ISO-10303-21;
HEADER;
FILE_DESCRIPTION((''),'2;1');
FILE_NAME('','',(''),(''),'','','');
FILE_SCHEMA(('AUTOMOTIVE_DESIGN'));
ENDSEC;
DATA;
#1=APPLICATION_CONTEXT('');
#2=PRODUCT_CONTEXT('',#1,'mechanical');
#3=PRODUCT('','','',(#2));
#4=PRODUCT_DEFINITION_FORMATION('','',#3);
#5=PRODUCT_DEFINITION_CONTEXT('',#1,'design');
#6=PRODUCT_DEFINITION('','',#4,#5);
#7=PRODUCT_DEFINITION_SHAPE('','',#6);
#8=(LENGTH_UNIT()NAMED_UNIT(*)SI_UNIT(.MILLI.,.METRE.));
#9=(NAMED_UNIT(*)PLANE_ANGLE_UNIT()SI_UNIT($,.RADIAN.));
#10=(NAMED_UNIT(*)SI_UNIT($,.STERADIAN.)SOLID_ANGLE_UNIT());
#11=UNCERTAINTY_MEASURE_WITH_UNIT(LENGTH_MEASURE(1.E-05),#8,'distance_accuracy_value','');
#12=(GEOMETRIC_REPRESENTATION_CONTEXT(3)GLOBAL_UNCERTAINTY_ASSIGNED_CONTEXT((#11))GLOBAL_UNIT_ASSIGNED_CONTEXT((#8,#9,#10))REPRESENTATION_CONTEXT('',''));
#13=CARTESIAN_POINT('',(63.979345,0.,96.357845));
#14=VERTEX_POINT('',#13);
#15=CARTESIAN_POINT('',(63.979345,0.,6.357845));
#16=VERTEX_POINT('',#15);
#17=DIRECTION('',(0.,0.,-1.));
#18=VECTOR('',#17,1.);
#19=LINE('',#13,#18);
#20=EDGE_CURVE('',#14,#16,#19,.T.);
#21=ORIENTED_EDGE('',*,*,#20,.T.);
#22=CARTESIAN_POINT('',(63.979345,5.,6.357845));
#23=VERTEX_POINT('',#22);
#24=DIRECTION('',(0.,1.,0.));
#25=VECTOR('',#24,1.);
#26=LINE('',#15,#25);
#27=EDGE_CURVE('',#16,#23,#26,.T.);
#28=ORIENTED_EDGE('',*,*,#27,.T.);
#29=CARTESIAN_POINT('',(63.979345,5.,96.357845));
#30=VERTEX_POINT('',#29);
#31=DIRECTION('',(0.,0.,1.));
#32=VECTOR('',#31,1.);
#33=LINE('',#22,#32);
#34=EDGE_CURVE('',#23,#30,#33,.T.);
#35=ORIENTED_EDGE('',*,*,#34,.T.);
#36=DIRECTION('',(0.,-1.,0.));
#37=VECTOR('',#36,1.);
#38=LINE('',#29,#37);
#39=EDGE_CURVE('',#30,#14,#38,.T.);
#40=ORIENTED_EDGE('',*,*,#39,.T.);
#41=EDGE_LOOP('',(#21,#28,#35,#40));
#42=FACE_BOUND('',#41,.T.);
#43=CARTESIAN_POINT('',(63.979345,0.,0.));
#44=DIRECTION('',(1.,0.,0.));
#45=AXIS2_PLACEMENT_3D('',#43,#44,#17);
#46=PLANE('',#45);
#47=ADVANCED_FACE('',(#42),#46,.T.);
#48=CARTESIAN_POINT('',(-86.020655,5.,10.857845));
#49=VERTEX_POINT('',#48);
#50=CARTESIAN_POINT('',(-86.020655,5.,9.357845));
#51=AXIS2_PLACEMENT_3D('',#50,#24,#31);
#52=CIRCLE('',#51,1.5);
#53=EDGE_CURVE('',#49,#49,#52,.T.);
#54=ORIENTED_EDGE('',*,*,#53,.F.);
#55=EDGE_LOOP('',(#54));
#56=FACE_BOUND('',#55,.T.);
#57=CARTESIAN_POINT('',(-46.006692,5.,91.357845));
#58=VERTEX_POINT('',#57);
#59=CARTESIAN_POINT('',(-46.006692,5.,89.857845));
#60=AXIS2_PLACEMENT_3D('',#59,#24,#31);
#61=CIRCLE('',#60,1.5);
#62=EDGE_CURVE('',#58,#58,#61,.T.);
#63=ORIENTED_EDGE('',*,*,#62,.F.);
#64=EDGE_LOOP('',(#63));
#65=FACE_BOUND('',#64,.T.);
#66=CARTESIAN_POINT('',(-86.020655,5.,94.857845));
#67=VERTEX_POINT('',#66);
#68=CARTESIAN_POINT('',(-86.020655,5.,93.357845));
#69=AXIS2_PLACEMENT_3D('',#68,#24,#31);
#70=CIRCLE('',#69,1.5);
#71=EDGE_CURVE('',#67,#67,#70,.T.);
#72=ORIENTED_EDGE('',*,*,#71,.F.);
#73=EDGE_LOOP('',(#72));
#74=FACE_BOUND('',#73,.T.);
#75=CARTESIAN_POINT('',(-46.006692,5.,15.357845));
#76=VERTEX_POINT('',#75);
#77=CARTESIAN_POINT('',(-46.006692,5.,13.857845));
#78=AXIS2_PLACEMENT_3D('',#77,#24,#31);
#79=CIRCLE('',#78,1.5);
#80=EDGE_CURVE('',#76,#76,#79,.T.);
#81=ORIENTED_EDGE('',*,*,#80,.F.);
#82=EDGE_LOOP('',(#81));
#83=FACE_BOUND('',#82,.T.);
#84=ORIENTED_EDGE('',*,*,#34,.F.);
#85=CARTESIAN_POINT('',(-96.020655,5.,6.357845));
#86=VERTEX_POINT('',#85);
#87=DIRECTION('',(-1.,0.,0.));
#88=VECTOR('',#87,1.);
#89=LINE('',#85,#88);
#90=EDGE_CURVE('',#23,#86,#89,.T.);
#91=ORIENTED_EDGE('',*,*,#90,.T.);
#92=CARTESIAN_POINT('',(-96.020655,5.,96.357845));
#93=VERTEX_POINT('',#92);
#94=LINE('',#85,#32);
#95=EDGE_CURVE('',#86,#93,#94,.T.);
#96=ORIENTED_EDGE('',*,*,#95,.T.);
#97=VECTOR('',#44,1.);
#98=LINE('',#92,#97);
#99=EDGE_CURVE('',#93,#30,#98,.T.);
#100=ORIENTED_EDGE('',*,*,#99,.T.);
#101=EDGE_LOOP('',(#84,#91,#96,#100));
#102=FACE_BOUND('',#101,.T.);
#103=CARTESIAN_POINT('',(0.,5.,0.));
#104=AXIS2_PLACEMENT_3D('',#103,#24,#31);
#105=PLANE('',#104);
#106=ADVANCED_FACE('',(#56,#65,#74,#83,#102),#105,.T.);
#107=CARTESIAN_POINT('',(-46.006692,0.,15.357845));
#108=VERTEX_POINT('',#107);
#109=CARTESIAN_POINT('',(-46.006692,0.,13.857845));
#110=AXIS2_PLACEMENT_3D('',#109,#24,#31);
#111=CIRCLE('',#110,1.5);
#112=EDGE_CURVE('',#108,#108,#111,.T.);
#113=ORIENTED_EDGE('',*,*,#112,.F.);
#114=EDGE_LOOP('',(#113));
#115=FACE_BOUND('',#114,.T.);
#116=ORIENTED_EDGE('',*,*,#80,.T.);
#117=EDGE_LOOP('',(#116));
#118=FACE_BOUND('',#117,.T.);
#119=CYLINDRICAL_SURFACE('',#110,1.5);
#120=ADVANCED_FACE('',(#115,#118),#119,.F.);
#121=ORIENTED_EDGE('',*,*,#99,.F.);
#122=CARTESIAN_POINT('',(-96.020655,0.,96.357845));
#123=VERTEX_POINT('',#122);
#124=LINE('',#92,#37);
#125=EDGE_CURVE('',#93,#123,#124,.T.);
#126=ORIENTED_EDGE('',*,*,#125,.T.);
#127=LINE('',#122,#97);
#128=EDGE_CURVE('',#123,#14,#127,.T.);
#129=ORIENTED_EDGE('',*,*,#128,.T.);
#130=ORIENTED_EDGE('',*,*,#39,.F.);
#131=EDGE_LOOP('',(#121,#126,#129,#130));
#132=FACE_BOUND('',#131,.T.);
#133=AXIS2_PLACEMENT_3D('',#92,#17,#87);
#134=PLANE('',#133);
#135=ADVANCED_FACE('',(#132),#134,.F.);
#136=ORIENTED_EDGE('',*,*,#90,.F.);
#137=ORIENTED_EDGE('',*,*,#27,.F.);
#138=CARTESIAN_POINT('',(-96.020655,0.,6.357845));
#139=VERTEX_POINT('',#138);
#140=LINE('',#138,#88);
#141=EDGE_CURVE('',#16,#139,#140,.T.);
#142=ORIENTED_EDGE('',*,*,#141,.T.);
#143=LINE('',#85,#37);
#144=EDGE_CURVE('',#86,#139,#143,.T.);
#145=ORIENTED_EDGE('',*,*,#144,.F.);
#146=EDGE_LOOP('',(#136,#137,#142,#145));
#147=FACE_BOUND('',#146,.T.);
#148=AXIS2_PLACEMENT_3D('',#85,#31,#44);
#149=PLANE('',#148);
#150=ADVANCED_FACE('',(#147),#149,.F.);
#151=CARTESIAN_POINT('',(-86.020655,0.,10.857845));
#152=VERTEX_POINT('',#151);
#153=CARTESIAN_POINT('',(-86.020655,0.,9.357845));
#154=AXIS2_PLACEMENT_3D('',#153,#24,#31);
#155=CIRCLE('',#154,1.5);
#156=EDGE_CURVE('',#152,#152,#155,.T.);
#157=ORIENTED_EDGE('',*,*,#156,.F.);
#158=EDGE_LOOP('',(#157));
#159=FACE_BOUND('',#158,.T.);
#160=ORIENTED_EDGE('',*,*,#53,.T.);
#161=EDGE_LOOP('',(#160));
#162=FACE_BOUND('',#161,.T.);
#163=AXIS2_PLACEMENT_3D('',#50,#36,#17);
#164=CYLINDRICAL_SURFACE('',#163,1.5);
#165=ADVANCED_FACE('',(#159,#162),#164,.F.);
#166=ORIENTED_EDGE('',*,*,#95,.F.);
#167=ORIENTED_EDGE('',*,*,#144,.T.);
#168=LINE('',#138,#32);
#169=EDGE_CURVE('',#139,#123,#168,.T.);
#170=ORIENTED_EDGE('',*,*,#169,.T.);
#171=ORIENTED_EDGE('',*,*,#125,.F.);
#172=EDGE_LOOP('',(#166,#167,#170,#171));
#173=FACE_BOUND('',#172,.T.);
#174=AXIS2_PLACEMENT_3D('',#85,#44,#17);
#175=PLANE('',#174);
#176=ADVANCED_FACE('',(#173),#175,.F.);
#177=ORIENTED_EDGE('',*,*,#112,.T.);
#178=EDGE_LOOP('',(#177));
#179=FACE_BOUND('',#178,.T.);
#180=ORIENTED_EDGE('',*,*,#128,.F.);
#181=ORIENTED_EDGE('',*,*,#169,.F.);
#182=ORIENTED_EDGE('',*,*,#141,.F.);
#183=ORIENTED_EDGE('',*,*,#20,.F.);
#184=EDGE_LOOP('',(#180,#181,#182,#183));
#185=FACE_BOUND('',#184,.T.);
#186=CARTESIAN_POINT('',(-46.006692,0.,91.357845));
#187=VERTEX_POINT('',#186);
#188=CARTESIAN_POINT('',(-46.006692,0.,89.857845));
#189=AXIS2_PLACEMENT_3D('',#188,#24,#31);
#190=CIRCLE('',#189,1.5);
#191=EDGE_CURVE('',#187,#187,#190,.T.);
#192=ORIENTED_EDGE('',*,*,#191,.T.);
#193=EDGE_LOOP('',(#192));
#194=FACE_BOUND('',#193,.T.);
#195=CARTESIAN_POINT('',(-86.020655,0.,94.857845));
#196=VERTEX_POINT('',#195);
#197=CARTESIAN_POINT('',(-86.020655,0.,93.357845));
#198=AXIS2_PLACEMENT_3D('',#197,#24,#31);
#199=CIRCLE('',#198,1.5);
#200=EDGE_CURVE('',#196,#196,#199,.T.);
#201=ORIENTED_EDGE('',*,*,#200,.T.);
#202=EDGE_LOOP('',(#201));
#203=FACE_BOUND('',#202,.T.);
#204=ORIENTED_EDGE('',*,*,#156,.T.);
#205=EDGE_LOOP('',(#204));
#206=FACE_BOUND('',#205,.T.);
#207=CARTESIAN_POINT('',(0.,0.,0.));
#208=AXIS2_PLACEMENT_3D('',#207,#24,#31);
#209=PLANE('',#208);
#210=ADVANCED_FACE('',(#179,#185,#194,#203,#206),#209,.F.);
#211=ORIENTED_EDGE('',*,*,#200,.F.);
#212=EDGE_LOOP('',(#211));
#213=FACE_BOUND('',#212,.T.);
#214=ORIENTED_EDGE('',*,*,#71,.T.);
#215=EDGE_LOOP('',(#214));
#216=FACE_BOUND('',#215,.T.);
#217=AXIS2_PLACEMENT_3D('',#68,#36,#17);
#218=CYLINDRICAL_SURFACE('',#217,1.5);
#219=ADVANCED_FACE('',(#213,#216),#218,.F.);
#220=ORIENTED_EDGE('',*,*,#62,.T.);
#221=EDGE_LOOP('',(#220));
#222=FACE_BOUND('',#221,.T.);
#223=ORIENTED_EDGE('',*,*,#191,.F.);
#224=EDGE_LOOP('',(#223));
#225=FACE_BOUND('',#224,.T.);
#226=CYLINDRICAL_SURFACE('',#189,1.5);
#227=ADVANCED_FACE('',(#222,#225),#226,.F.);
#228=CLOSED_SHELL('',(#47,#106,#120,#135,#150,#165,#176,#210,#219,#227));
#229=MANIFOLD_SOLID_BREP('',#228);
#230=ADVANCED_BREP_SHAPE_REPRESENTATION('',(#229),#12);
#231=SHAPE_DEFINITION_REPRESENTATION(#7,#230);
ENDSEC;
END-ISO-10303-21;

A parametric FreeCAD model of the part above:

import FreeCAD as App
import Part
import Sketcher
from FreeCAD import Vector


def add_polygon(sketch, points):
    """Adds a closed chain of lines whose ends are joined by coincident constraints."""
    first, n = sketch.GeometryCount, len(points)
    for a, b in zip(points, points[1:] + points[:1]):
        sketch.addGeometry(Part.LineSegment(App.Vector(*a, 0), App.Vector(*b, 0)), False)
    for i in range(n):
        sketch.addConstraint(Sketcher.Constraint("Coincident", first + i, 2, first + (i + 1) % n, 1))

doc = App.newDocument("Part")
params = doc.addObject("Spreadsheet::Sheet", "Params")
for row, (alias, value) in enumerate([
    ("sketch1_diameter", "3 mm"),
    ("sketch1_width", "200 mm"),
    ("sketch1_height", "90 mm"),
    ("pad1_length", "5 mm"),
    ("sketch2_width", "140 mm"),
    ("sketch2_height", "90 mm"),
    ("sketch3_diameter", "3 mm"),
    ("sketch4_width", "5 mm"),
    ("sketch4_height", "90 mm"),
    ("pad2_length", "100 mm"),
], start=1):
    params.set(f"A{row}", alias)
    params.set(f"B{row}", "=" + value)
    params.setAlias(f"B{row}", alias)

body = doc.addObject("PartDesign::Body", "Body")

# Sketch on XZ plane
sketch1 = body.newObject("Sketcher::SketchObject", "Sketch")
sketch1.AttachmentSupport = (doc.getObject("XZ_Plane"), [""])
sketch1.MapMode = "FlatFace"
add_polygon(sketch1, [(-96, 6.4), (-96, 96.4), (104, 96.4), (104, 6.4)])  # lines 0-3
sketch1.addGeometry(Part.Circle(Vector(-86, 93.4, 0), Vector(0, 0, 1), 1.5), False)  # 4
sketch1.addGeometry(Part.Circle(Vector(94, 93.4, 0), Vector(0, 0, 1), 1.5), False)  # 5
sketch1.addGeometry(Part.Circle(Vector(-86, 9.4, 0), Vector(0, 0, 1), 1.5), False)  # 6
sketch1.addGeometry(Part.Circle(Vector(94, 9.4, 0), Vector(0, 0, 1), 1.5), False)  # 7
sketch1.addConstraint([
    Sketcher.Constraint("Vertical", 0),
    Sketcher.Constraint("Horizontal", 1),
    Sketcher.Constraint("Vertical", 2),
    Sketcher.Constraint("Horizontal", 3),
    Sketcher.Constraint("Equal", 4, 5),
    Sketcher.Constraint("Equal", 5, 6),
    Sketcher.Constraint("Equal", 6, 7),
    Sketcher.Constraint("Horizontal", 4, 3, 5, 3),
    Sketcher.Constraint("Horizontal", 6, 3, 7, 3),
    Sketcher.Constraint("Vertical", 4, 3, 6, 3),
    Sketcher.Constraint("Vertical", 5, 3, 7, 3),
    Sketcher.Constraint("Diameter", 4, 3.0),
    Sketcher.Constraint("DistanceX", 1, 1, 1, 2, 200.0),
    Sketcher.Constraint("DistanceY", 0, 1, 0, 2, 90.0),
    Sketcher.Constraint("DistanceX", 4, 3, 5, 3, 180.0),
    Sketcher.Constraint("DistanceY", 6, 3, 4, 3, 84.0),
    Sketcher.Constraint("DistanceX", 0, 2, 4, 3, 10.0),
    Sketcher.Constraint("DistanceY", 4, 3, 0, 2, 3.0),
    Sketcher.Constraint("DistanceX", 4, 3, -1, 1, 86.020655),
    Sketcher.Constraint("DistanceY", -1, 1, 4, 3, 93.357845),
])
sketch1.setExpression("Constraints[15]", "Params.sketch1_diameter")
sketch1.setExpression("Constraints[16]", "Params.sketch1_width")
sketch1.setExpression("Constraints[17]", "Params.sketch1_height")
pad1 = body.newObject("PartDesign::Pad", "Pad")
pad1.Profile = sketch1
pad1.setExpression("Length", "Params.pad1_length")
pad1.Reversed = True

# Sketch on XZ plane
sketch2 = body.newObject("Sketcher::SketchObject", "Sketch001")
sketch2.AttachmentSupport = (doc.getObject("XZ_Plane"), [""])
sketch2.MapMode = "FlatFace"
sketch2.AttachmentOffset = App.Placement(Vector(0, 0, -5), App.Rotation())
add_polygon(sketch2, [(-36, 6), (-36, 96), (104, 96), (104, 6)])  # lines 0-3
sketch2.addConstraint([
    Sketcher.Constraint("Vertical", 0),
    Sketcher.Constraint("Horizontal", 1),
    Sketcher.Constraint("Vertical", 2),
    Sketcher.Constraint("Horizontal", 3),
    Sketcher.Constraint("DistanceX", 1, 1, 1, 2, 140.0),
    Sketcher.Constraint("DistanceY", 0, 1, 0, 2, 90.0),
    Sketcher.Constraint("DistanceX", 0, 2, -1, 1, 36.020655),
    Sketcher.Constraint("DistanceY", -1, 1, 0, 2, 96.357845),
])
sketch2.setExpression("Constraints[8]", "Params.sketch2_width")
sketch2.setExpression("Constraints[9]", "Params.sketch2_height")
pocket1 = body.newObject("PartDesign::Pocket", "Pocket")
pocket1.Profile = sketch2
pocket1.Type = "ThroughAll"
pocket1.Reversed = True

# Sketch on XZ plane
sketch3 = body.newObject("Sketcher::SketchObject", "Sketch002")
sketch3.AttachmentSupport = (doc.getObject("XZ_Plane"), [""])
sketch3.MapMode = "FlatFace"
sketch3.AttachmentOffset = App.Placement(Vector(0, 0, -5), App.Rotation())
sketch3.addGeometry([
    Part.Circle(Vector(-46, 13.9, 0), Vector(0, 0, 1), 1.5),
    Part.Circle(Vector(-46, 89.9, 0), Vector(0, 0, 1), 1.5),
], False)
sketch3.addConstraint([
    Sketcher.Constraint("Equal", 0, 1),
    Sketcher.Constraint("Vertical", 0, 3, 1, 3),
    Sketcher.Constraint("Diameter", 0, 3.0),
    Sketcher.Constraint("DistanceY", 0, 3, 1, 3, 76.0),
    Sketcher.Constraint("DistanceX", 0, 3, -1, 1, 46.006692),
    Sketcher.Constraint("DistanceY", -1, 1, 0, 3, 13.857845),
])
sketch3.setExpression("Constraints[2]", "Params.sketch3_diameter")
pocket2 = body.newObject("PartDesign::Pocket", "Pocket001")
pocket2.Profile = sketch3
pocket2.Type = "ThroughAll"
pocket2.Reversed = True

# Sketch on YZ plane
sketch4 = body.newObject("Sketcher::SketchObject", "Sketch003")
sketch4.AttachmentSupport = (doc.getObject("YZ_Plane"), [""])
sketch4.MapMode = "FlatFace"
sketch4.AttachmentOffset = App.Placement(Vector(0, 0, -36.020655), App.Rotation())
add_polygon(sketch4, [(5, 96), (0, 96), (0, 6), (5, 6)])  # lines 0-3
sketch4.addConstraint([
    Sketcher.Constraint("Horizontal", 0),
    Sketcher.Constraint("Vertical", 1),
    Sketcher.Constraint("Horizontal", 2),
    Sketcher.Constraint("Vertical", 3),
    Sketcher.Constraint("PointOnObject", 0, 2, -2),
    Sketcher.Constraint("DistanceX", 0, 2, 0, 1, 5.0),
    Sketcher.Constraint("DistanceY", 1, 2, 1, 1, 90.0),
    Sketcher.Constraint("DistanceY", -1, 1, 0, 2, 96.357845),
])
sketch4.setExpression("Constraints[9]", "Params.sketch4_width")
sketch4.setExpression("Constraints[10]", "Params.sketch4_height")
pad2 = body.newObject("PartDesign::Pad", "Pad001")
pad2.Profile = sketch4
pad2.setExpression("Length", "Params.pad2_length")

doc.recompute()
